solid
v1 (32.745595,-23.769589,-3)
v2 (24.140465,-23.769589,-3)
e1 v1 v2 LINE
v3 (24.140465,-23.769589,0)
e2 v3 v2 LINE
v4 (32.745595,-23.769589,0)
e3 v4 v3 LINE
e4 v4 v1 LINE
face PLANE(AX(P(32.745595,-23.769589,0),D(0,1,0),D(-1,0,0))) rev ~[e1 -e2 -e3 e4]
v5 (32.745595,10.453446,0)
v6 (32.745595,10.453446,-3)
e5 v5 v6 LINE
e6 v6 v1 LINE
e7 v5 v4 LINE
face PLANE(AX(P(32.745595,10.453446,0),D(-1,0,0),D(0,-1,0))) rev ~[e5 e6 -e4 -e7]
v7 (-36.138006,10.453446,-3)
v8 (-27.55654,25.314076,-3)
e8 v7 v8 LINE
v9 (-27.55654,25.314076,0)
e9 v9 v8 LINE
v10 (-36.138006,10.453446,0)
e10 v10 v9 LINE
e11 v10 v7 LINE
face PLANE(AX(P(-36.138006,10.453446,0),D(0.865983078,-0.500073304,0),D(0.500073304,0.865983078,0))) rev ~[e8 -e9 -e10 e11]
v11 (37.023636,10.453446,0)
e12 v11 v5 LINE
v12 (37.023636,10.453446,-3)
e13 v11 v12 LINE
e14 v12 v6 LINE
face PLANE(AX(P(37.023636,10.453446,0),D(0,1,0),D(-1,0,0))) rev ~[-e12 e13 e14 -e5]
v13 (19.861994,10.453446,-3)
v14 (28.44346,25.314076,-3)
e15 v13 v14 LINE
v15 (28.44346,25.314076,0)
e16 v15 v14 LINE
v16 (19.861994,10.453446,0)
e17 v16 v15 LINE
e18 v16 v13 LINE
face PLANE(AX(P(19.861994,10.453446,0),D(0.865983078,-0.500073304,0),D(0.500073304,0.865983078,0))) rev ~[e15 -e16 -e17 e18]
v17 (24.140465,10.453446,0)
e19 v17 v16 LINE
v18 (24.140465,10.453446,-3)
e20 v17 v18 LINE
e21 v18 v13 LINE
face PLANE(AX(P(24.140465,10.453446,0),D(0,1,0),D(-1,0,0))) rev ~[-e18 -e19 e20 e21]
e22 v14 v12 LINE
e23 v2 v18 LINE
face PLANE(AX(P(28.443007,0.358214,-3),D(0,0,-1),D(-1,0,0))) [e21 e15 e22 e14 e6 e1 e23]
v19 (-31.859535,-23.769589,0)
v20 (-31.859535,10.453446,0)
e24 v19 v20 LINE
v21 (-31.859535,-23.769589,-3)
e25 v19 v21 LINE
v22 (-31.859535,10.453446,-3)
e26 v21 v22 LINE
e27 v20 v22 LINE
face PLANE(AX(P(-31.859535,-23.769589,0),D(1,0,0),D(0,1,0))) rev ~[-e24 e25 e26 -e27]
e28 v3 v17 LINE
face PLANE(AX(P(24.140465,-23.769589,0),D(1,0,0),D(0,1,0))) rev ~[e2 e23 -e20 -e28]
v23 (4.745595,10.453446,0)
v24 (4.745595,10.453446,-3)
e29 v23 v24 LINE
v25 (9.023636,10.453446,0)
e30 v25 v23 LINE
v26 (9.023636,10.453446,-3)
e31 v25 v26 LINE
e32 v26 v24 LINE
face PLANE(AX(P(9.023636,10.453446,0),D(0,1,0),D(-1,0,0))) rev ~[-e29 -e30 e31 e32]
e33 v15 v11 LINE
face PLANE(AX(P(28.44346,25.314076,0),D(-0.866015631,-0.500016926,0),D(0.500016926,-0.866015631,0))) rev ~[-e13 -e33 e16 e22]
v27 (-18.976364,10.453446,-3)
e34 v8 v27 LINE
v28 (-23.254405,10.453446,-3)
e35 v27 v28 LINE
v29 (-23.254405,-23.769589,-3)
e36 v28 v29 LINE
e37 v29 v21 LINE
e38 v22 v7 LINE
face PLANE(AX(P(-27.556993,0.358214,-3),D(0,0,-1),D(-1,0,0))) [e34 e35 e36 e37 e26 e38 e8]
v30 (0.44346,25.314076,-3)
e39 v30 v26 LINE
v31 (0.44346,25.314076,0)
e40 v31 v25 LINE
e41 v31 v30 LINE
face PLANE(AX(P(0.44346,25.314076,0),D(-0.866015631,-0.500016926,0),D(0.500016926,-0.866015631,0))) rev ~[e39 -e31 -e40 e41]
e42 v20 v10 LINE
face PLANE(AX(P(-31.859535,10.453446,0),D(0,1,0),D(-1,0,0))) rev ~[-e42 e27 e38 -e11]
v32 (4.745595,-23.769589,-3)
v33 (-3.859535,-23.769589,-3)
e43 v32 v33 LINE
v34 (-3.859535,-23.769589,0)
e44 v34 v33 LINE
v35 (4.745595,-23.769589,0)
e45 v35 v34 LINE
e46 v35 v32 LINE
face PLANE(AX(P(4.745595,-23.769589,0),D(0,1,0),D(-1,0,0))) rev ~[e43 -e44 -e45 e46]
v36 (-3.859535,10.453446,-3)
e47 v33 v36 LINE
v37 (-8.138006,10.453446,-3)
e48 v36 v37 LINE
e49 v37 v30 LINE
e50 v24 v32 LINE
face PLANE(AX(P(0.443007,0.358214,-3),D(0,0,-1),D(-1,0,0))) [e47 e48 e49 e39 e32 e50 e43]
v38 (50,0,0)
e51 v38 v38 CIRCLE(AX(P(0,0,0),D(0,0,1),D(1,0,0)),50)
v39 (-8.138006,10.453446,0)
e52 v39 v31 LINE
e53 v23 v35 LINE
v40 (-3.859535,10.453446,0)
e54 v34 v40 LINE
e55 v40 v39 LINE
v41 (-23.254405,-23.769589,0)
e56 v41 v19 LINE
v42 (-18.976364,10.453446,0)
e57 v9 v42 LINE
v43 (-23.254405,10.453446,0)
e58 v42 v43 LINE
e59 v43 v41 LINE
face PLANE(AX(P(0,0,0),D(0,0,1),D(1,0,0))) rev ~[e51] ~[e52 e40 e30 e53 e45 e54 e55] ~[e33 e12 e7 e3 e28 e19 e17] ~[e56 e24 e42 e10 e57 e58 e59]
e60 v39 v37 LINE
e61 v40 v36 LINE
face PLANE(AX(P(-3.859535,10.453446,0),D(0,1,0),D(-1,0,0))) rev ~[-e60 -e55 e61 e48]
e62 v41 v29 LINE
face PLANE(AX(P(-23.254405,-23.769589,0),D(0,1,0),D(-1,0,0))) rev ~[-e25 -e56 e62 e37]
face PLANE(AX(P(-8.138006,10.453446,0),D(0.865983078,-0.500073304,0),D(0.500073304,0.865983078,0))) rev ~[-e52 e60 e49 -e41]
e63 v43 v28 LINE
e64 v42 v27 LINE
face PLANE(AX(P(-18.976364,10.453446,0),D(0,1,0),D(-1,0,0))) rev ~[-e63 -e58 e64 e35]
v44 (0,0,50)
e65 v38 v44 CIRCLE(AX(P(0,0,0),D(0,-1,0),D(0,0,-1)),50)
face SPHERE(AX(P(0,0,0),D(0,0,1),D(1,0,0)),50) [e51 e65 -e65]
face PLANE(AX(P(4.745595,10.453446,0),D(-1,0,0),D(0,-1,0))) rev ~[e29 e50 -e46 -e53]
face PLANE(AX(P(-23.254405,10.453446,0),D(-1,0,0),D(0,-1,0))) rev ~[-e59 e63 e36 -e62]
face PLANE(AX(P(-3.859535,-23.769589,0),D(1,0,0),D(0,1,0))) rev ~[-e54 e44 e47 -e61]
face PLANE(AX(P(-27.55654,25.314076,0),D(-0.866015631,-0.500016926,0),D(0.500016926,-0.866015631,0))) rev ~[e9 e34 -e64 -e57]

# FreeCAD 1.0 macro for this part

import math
import FreeCAD as App
import Part
import Sketcher
from FreeCAD import Vector
Q = App.Units.Quantity

doc = App.newDocument("Part")
body = doc.addObject("PartDesign::Body", "Body")

# Sketch on XY plane
sketch1 = body.newObject("Sketcher::SketchObject", "Sketch")
sketch1.AttachmentSupport = (doc.getObject("XY_Plane"), [""])
sketch1.MapMode = "FlatFace"
sketch1.addGeometry([
    Part.LineSegment(Vector(9, 10.5, 0), Vector(0.4, 25.3, 0)),  # 0
    Part.LineSegment(Vector(0.4, 25.3, 0), Vector(-8.1, 10.5, 0)),  # 1
    Part.LineSegment(Vector(-8.1, 10.5, 0), Vector(-3.9, 10.5, 0)),  # 2
    Part.LineSegment(Vector(-3.9, 10.5, 0), Vector(-3.9, -23.8, 0)),  # 3
    Part.LineSegment(Vector(-3.9, -23.8, 0), Vector(4.7, -23.8, 0)),  # 4
    Part.LineSegment(Vector(4.7, -23.8, 0), Vector(4.7, 10.5, 0)),  # 5
    Part.LineSegment(Vector(4.7, 10.5, 0), Vector(9, 10.5, 0)),  # 6
], False)
sketch1.addConstraint([
    Sketcher.Constraint("Coincident", 0, 2, 1, 1),
    Sketcher.Constraint("Coincident", 1, 2, 2, 1),
    Sketcher.Constraint("Coincident", 2, 2, 3, 1),
    Sketcher.Constraint("Coincident", 3, 2, 4, 1),
    Sketcher.Constraint("Coincident", 4, 2, 5, 1),
    Sketcher.Constraint("Coincident", 5, 2, 6, 1),
    Sketcher.Constraint("Coincident", 6, 2, 0, 1),
    Sketcher.Constraint("Horizontal", 2),
    Sketcher.Constraint("Vertical", 3),
    Sketcher.Constraint("Horizontal", 4),
    Sketcher.Constraint("Vertical", 5),
    Sketcher.Constraint("Horizontal", 6),
    Sketcher.Constraint("Horizontal", 2, 2, 5, 2),
    Sketcher.Constraint("DistanceX", 2, 1, 2, 2, Q("4.278471 mm")),
    Sketcher.Constraint("DistanceX", 4, 1, 4, 2, Q("8.60513 mm")),
    Sketcher.Constraint("DistanceX", 6, 1, 6, 2, Q("4.278041 mm")),
    Sketcher.Constraint("Distance", 0, Q("17.159771 mm")),
    Sketcher.Constraint("DistanceY", 3, 2, 3, 1, Q("34.223035 mm")),
    Sketcher.Constraint("DistanceX", -1, 1, 0, 2, Q("0.44346 mm")),
    Sketcher.Constraint("DistanceY", 3, 2, -1, 1, Q("23.769589 mm")),
    Sketcher.Constraint("DistanceY", 1, 2, 0, 2, Q("14.86063 mm")),
])
pad1 = body.newObject("PartDesign::Pad", "Pad")
pad1.Profile = sketch1
pad1.Length = 3
pad1.Reversed = True
body2 = doc.addObject("PartDesign::Body", "Body001")

# Sketch on XY plane
sketch2 = body2.newObject("Sketcher::SketchObject", "Sketch001")
sketch2.AttachmentSupport = (doc.getObject("XY_Plane001"), [""])
sketch2.MapMode = "FlatFace"
sketch2.addGeometry([
    Part.LineSegment(Vector(-19, 10.5, 0), Vector(-27.6, 25.3, 0)),  # 0
    Part.LineSegment(Vector(-27.6, 25.3, 0), Vector(-36.1, 10.5, 0)),  # 1
    Part.LineSegment(Vector(-36.1, 10.5, 0), Vector(-31.9, 10.5, 0)),  # 2
    Part.LineSegment(Vector(-31.9, 10.5, 0), Vector(-31.9, -23.8, 0)),  # 3
    Part.LineSegment(Vector(-31.9, -23.8, 0), Vector(-23.3, -23.8, 0)),  # 4
    Part.LineSegment(Vector(-23.3, -23.8, 0), Vector(-23.3, 10.5, 0)),  # 5
    Part.LineSegment(Vector(-23.3, 10.5, 0), Vector(-19, 10.5, 0)),  # 6
], False)
sketch2.addConstraint([
    Sketcher.Constraint("Coincident", 0, 2, 1, 1),
    Sketcher.Constraint("Coincident", 1, 2, 2, 1),
    Sketcher.Constraint("Coincident", 2, 2, 3, 1),
    Sketcher.Constraint("Coincident", 3, 2, 4, 1),
    Sketcher.Constraint("Coincident", 4, 2, 5, 1),
    Sketcher.Constraint("Coincident", 5, 2, 6, 1),
    Sketcher.Constraint("Coincident", 6, 2, 0, 1),
    Sketcher.Constraint("Horizontal", 2),
    Sketcher.Constraint("Vertical", 3),
    Sketcher.Constraint("Horizontal", 4),
    Sketcher.Constraint("Vertical", 5),
    Sketcher.Constraint("Horizontal", 6),
    Sketcher.Constraint("Horizontal", 2, 2, 5, 2),
    Sketcher.Constraint("DistanceX", 2, 1, 2, 2, Q("4.278471 mm")),
    Sketcher.Constraint("DistanceX", 4, 1, 4, 2, Q("8.60513 mm")),
    Sketcher.Constraint("DistanceX", 6, 1, 6, 2, Q("4.278041 mm")),
    Sketcher.Constraint("Distance", 0, Q("17.159771 mm")),
    Sketcher.Constraint("DistanceY", 3, 2, 3, 1, Q("34.223035 mm")),
    Sketcher.Constraint("DistanceX", 0, 2, -1, 1, Q("27.55654 mm")),
    Sketcher.Constraint("DistanceY", 3, 2, -1, 1, Q("23.769589 mm")),
    Sketcher.Constraint("DistanceY", 1, 2, 0, 2, Q("14.86063 mm")),
])
pad2 = body2.newObject("PartDesign::Pad", "Pad001")
pad2.Profile = sketch2
pad2.Length = 3
pad2.Reversed = True
body3 = doc.addObject("PartDesign::Body", "Body002")

# Sketch on XY plane
sketch3 = body3.newObject("Sketcher::SketchObject", "Sketch002")
sketch3.AttachmentSupport = (doc.getObject("XY_Plane002"), [""])
sketch3.MapMode = "FlatFace"
sketch3.addGeometry([
    Part.LineSegment(Vector(-50, 50, 0), Vector(-50, -50, 0)),
    Part.LineSegment(Vector(-50, -50, 0), Vector(50, -50, 0)),
    Part.LineSegment(Vector(50, -50, 0), Vector(50, 50, 0)),
    Part.LineSegment(Vector(50, 50, 0), Vector(-50, 50, 0)),
], False)
sketch3.addConstraint([
    Sketcher.Constraint("Coincident", 0, 2, 1, 1),
    Sketcher.Constraint("Coincident", 1, 2, 2, 1),
    Sketcher.Constraint("Coincident", 2, 2, 3, 1),
    Sketcher.Constraint("Coincident", 3, 2, 0, 1),
    Sketcher.Constraint("Vertical", 0),
    Sketcher.Constraint("Horizontal", 1),
    Sketcher.Constraint("Vertical", 2),
    Sketcher.Constraint("Horizontal", 3),
    Sketcher.Constraint("Symmetric", 0, 2, 2, 2, -1, 1),
    Sketcher.Constraint("Equal", 3, 0),
    Sketcher.Constraint("DistanceX", 1, 1, 1, 2, Q("100 mm")),
])
pad3 = body3.newObject("PartDesign::Pad", "Pad002")
pad3.Profile = sketch3
pad3.Length = 50
pad3.Reversed = True
body4 = doc.addObject("PartDesign::Body", "Body003")

# Sketch on XZ plane
sketch4 = body4.newObject("Sketcher::SketchObject", "Sketch003")
sketch4.AttachmentSupport = (doc.getObject("XZ_Plane003"), [""])
sketch4.MapMode = "FlatFace"
sketch4.addGeometry([
    Part.ArcOfCircle(Part.Circle(Vector(0, 0, 0), Vector(0, 0, 1), 50), math.radians(-90), math.radians(90)),
    Part.LineSegment(Vector(0, 50, 0), Vector(0, -50, 0)),
], False)
sketch4.addConstraint([
    Sketcher.Constraint("Coincident", 0, 1, 1, 2),
    Sketcher.Constraint("Coincident", 1, 1, 0, 2),
    Sketcher.Constraint("Vertical", 1),
    Sketcher.Constraint("Coincident", 0, 3, -1, 1),
    Sketcher.Constraint("PointOnObject", 0, 1, -2),
    Sketcher.Constraint("Radius", 0, Q("50 mm")),
])
revolution = body4.newObject("PartDesign::Revolution", "Revolution")
revolution.Profile = sketch4
revolution.ReferenceAxis = (sketch4, ["V_Axis"])
revolution.Angle = 360
doc.recompute()

boolean = body4.newObject("PartDesign::Boolean", "Boolean")
boolean.Type = "Cut"
boolean.addObjects([body3])
body5 = doc.addObject("PartDesign::Body", "Body004")
body5.AllowCompound = True

# Sketch on XY plane
sketch5 = body5.newObject("Sketcher::SketchObject", "Sketch004")
sketch5.AttachmentSupport = (doc.getObject("XY_Plane004"), [""])
sketch5.MapMode = "FlatFace"
sketch5.addGeometry([
    Part.LineSegment(Vector(37, 10.5, 0), Vector(28.4, 25.3, 0)),  # 0
    Part.LineSegment(Vector(28.4, 25.3, 0), Vector(19.9, 10.5, 0)),  # 1
    Part.LineSegment(Vector(19.9, 10.5, 0), Vector(24.1, 10.5, 0)),  # 2
    Part.LineSegment(Vector(24.1, 10.5, 0), Vector(24.1, -23.8, 0)),  # 3
    Part.LineSegment(Vector(24.1, -23.8, 0), Vector(32.7, -23.8, 0)),  # 4
    Part.LineSegment(Vector(32.7, -23.8, 0), Vector(32.7, 10.5, 0)),  # 5
    Part.LineSegment(Vector(32.7, 10.5, 0), Vector(37, 10.5, 0)),  # 6
], False)
sketch5.addConstraint([
    Sketcher.Constraint("Coincident", 0, 2, 1, 1),
    Sketcher.Constraint("Coincident", 1, 2, 2, 1),
    Sketcher.Constraint("Coincident", 2, 2, 3, 1),
    Sketcher.Constraint("Coincident", 3, 2, 4, 1),
    Sketcher.Constraint("Coincident", 4, 2, 5, 1),
    Sketcher.Constraint("Coincident", 5, 2, 6, 1),
    Sketcher.Constraint("Coincident", 6, 2, 0, 1),
    Sketcher.Constraint("Horizontal", 2),
    Sketcher.Constraint("Vertical", 3),
    Sketcher.Constraint("Horizontal", 4),
    Sketcher.Constraint("Vertical", 5),
    Sketcher.Constraint("Horizontal", 6),
    Sketcher.Constraint("Horizontal", 2, 2, 5, 2),
    Sketcher.Constraint("DistanceX", 2, 1, 2, 2, Q("4.278471 mm")),
    Sketcher.Constraint("DistanceX", 4, 1, 4, 2, Q("8.60513 mm")),
    Sketcher.Constraint("DistanceX", 6, 1, 6, 2, Q("4.278041 mm")),
    Sketcher.Constraint("Distance", 0, Q("17.159771 mm")),
    Sketcher.Constraint("DistanceY", 3, 2, 3, 1, Q("34.223035 mm")),
    Sketcher.Constraint("DistanceX", -1, 1, 0, 2, Q("28.44346 mm")),
    Sketcher.Constraint("DistanceY", 3, 2, -1, 1, Q("23.769589 mm")),
    Sketcher.Constraint("DistanceY", 1, 2, 0, 2, Q("14.86063 mm")),
])
pad4 = body5.newObject("PartDesign::Pad", "Pad003")
pad4.Profile = sketch5
pad4.Length = 3
pad4.Reversed = True
doc.recompute()

boolean2 = body5.newObject("PartDesign::Boolean", "Boolean001")
boolean2.Type = "Fuse"
boolean2.addObjects([body])
doc.recompute()

boolean3 = body5.newObject("PartDesign::Boolean", "Boolean002")
boolean3.Type = "Fuse"
boolean3.addObjects([body2])
doc.recompute()

boolean4 = body5.newObject("PartDesign::Boolean", "Boolean003")
boolean4.Type = "Fuse"
boolean4.addObjects([body4])

doc.recompute()
